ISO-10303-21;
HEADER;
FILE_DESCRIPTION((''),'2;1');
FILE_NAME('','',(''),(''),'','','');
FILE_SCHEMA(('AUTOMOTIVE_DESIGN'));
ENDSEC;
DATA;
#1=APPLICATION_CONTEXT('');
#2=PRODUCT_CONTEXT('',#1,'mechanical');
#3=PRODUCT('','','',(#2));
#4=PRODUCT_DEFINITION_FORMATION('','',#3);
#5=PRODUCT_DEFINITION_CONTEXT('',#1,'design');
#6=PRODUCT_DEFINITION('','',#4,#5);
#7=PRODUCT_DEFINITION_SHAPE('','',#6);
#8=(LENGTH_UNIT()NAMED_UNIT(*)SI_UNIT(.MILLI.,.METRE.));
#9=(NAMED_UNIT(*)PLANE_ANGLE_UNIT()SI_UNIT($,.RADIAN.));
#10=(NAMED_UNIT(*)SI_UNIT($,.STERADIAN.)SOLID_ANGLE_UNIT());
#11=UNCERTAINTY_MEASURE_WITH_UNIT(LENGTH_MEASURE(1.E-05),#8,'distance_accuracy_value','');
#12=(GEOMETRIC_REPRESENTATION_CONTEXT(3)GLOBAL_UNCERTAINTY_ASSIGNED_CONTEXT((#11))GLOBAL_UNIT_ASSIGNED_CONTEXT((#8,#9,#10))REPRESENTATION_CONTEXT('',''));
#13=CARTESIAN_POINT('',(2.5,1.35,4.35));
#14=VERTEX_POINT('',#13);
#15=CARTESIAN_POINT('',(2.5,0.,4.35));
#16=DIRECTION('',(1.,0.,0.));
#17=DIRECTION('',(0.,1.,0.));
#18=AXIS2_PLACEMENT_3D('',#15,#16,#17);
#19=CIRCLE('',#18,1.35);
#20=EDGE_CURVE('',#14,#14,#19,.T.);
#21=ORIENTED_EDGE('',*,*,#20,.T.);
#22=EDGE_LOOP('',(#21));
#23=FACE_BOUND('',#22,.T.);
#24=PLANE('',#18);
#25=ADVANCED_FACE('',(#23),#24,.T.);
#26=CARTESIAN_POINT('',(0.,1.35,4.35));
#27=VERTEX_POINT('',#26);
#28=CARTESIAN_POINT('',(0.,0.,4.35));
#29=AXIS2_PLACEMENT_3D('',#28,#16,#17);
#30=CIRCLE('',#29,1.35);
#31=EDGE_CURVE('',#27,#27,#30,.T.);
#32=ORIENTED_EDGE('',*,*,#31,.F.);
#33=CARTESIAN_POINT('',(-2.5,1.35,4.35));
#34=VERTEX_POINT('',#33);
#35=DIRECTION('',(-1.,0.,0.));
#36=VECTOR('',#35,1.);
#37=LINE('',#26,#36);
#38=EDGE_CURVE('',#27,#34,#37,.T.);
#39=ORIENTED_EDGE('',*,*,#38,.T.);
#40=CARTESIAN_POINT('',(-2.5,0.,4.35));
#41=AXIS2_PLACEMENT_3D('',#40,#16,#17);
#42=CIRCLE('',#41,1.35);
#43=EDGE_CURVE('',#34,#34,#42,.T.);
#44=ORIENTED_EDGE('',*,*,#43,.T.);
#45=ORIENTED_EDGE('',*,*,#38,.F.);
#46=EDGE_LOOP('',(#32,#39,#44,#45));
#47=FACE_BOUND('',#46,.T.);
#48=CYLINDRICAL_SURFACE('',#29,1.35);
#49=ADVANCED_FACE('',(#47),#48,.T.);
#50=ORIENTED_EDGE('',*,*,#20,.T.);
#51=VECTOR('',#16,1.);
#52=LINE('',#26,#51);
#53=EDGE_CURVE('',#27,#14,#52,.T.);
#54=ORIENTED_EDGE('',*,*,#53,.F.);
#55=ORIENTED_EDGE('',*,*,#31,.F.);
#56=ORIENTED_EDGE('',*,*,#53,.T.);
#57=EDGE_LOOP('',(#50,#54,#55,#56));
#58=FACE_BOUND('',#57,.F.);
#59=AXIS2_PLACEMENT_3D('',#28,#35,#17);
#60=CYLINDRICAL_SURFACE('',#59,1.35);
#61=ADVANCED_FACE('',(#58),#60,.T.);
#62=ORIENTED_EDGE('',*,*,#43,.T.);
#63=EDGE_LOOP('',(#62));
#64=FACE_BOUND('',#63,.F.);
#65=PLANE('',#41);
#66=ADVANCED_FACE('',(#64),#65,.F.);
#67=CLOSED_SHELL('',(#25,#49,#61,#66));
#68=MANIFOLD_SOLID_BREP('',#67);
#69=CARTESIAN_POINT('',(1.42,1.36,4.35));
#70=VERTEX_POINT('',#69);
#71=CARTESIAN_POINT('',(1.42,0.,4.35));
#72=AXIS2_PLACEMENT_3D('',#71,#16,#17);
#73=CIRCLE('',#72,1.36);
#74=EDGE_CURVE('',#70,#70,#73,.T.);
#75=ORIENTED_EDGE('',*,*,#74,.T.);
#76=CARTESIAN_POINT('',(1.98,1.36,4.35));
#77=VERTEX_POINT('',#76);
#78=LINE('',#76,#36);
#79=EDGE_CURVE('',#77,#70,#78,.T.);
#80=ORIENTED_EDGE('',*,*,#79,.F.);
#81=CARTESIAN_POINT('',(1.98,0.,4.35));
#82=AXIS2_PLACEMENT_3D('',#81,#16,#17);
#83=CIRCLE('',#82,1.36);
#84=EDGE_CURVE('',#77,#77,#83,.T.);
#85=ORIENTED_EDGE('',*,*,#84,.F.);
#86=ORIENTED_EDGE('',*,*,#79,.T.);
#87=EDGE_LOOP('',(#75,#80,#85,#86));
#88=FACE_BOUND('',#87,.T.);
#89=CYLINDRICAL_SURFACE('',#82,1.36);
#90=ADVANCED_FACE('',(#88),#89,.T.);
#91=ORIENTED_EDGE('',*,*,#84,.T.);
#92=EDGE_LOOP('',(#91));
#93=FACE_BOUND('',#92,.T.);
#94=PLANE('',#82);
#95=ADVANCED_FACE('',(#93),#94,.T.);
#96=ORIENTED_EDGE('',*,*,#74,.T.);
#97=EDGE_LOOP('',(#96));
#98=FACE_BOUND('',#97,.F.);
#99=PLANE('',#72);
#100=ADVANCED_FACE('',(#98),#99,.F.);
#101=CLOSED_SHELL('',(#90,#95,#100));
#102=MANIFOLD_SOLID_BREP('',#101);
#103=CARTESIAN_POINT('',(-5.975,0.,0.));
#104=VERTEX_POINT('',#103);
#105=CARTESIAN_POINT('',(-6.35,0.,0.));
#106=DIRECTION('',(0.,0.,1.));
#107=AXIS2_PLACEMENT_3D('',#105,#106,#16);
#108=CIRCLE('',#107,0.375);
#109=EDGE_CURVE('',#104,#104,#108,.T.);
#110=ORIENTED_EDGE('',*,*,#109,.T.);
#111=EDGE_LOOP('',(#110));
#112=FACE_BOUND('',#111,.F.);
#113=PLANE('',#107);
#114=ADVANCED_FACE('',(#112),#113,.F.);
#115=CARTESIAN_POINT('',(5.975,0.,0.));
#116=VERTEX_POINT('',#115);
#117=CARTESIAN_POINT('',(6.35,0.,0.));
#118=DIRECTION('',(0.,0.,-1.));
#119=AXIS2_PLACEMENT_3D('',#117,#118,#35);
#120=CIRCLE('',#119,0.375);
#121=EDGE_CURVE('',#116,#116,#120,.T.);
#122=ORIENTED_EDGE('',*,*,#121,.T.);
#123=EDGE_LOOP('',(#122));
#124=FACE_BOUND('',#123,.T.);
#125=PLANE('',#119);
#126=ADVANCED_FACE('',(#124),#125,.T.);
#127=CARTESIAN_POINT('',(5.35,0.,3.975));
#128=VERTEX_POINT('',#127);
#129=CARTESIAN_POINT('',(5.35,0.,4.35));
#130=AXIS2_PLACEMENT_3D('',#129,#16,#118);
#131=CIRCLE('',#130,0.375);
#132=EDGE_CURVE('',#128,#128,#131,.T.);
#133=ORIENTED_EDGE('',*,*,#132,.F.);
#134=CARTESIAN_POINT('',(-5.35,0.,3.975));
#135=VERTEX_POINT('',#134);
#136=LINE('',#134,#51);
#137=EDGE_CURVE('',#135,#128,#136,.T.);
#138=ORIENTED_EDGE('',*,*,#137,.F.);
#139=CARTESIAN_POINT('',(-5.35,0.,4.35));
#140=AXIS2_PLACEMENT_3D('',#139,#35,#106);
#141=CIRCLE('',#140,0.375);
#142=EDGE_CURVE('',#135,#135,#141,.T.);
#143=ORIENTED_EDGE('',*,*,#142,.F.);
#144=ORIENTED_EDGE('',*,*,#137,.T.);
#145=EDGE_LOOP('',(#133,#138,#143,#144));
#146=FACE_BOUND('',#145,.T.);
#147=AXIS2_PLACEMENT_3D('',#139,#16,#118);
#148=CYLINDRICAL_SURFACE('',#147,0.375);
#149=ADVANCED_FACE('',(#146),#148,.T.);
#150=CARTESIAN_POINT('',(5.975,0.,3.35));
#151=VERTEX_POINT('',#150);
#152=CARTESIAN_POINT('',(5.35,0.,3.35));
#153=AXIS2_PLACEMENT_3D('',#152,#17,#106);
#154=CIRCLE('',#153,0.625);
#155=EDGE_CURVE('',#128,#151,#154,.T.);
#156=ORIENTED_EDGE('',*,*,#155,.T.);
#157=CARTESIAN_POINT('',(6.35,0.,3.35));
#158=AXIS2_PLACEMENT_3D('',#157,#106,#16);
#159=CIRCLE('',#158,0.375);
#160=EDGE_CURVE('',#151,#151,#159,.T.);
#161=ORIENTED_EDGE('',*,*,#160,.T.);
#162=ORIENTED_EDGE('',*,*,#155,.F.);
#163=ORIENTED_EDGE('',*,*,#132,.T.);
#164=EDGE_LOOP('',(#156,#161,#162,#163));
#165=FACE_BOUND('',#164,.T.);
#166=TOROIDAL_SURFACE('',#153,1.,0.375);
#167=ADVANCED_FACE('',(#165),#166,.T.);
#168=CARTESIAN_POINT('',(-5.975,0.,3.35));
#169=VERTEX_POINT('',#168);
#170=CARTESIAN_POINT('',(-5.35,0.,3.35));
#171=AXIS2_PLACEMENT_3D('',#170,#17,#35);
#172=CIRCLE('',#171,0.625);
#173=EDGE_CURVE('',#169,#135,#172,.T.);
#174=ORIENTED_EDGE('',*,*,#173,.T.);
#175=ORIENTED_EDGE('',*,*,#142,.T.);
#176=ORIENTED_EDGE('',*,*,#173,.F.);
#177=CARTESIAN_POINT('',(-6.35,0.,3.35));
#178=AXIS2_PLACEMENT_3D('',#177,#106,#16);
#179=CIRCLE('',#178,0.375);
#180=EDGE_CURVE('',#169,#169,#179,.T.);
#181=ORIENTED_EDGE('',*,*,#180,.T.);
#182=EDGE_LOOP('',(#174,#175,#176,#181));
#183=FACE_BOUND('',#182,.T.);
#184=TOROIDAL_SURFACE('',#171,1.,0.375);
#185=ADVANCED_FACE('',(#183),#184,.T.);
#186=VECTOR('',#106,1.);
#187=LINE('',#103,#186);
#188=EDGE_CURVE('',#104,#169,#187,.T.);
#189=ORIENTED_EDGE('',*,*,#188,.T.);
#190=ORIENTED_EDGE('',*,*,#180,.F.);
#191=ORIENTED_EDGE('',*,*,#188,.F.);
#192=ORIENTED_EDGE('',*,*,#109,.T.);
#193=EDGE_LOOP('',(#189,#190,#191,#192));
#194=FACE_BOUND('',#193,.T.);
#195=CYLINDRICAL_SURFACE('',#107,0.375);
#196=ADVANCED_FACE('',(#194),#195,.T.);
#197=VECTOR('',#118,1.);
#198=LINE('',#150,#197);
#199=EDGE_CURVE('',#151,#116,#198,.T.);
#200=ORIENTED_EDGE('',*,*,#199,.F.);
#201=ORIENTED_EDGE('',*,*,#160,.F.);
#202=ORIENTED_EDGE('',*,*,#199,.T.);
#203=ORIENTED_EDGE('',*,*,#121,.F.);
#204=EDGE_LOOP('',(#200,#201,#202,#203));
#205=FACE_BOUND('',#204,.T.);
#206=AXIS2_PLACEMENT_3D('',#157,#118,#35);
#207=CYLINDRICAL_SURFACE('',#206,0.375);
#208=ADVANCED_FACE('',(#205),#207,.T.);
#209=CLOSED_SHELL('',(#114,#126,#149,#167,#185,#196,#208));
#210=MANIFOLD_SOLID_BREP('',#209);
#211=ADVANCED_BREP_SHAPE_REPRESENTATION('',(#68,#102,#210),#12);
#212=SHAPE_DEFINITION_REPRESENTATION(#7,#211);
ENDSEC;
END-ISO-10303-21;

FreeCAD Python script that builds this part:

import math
import FreeCAD as App
import Part
import Sketcher

V = App.Vector
Q = App.Units.Quantity

doc = App.newDocument("Part")
body = doc.addObject("PartDesign::Body", "Body")

sketch1 = body.newObject("Sketcher::SketchObject", "Sketch")
sketch1.AttachmentSupport = (doc.getObject("XY_Plane"), [""])
sketch1.MapMode = "FlatFace"
sketch1.addGeometry(Part.Circle(V(-6.35, 0, 0), V(0, 0, 1), 0.38), False)
sketch1.addConstraint(Sketcher.Constraint("PointOnObject", 0, 3, -1))
sketch1.addConstraint(Sketcher.Constraint("Diameter", 0, Q("0.75 mm")))
sketch1.addConstraint(Sketcher.Constraint("DistanceX", 0, 3, -1, 1, Q("6.35 mm")))

sketch2 = body.newObject("Sketcher::SketchObject", "Sketch001")
sketch2.AttachmentSupport = (doc.getObject("XZ_Plane"), [""])
sketch2.MapMode = "FlatFace"
sketch2.addGeometry(Part.LineSegment(V(-6.3, 0, 0), V(-6.3, 3.4, 0)), False)
sketch2.addGeometry(Part.ArcOfCircle(Part.Circle(V(-5.3, 3.4, 0), V(0, 0, 1), 1), math.radians(90), math.radians(180)), False)
sketch2.addGeometry(Part.LineSegment(V(-5.3, 4.3, 0), V(5.3, 4.3, 0)), False)
sketch2.addGeometry(Part.ArcOfCircle(Part.Circle(V(5.3, 3.4, 0), V(0, 0, 1), 1), math.radians(0), math.radians(90)), False)
sketch2.addGeometry(Part.LineSegment(V(6.3, 3.4, 0), V(6.3, 0, 0)), False)
sketch2.addConstraint(Sketcher.Constraint("Tangent", 0, 2, 1, 2))
sketch2.addConstraint(Sketcher.Constraint("Tangent", 1, 1, 2, 1))
sketch2.addConstraint(Sketcher.Constraint("Tangent", 2, 2, 3, 2))
sketch2.addConstraint(Sketcher.Constraint("Tangent", 3, 1, 4, 1))
sketch2.addConstraint(Sketcher.Constraint("Vertical", 0))
sketch2.addConstraint(Sketcher.Constraint("Horizontal", 2))
sketch2.addConstraint(Sketcher.Constraint("Vertical", 4))
sketch2.addConstraint(Sketcher.Constraint("Equal", 1, 3))
sketch2.addConstraint(Sketcher.Constraint("Symmetric", 0, 1, 4, 2, -1, 1))
sketch2.addConstraint(Sketcher.Constraint("PointOnObject", 0, 1, -1))
sketch2.addConstraint(Sketcher.Constraint("Radius", 1, Q("1 mm")))
sketch2.addConstraint(Sketcher.Constraint("DistanceX", 2, 1, 2, 2, Q("10.7 mm")))
sketch2.addConstraint(Sketcher.Constraint("DistanceY", 0, 1, 0, 2, Q("3.35 mm")))
doc.recompute()

additivepipe = body.newObject("PartDesign::AdditivePipe", "AdditivePipe")
additivepipe.Profile = sketch1
additivepipe.Spine = (sketch2, ["Edge1", "Edge2", "Edge3", "Edge4", "Edge5"])
body2 = doc.addObject("PartDesign::Body", "Body001")

sketch3 = body2.newObject("Sketcher::SketchObject", "Sketch002")
sketch3.AttachmentSupport = (doc.getObject("YZ_Plane001"), [""])
sketch3.MapMode = "FlatFace"
sketch3.addGeometry(Part.Circle(V(0, 4.3, 0), V(0, 0, 1), 1.4), False)
sketch3.addConstraint(Sketcher.Constraint("PointOnObject", 0, 3, -2))
sketch3.addConstraint(Sketcher.Constraint("Diameter", 0, Q("2.7 mm")))
sketch3.addConstraint(Sketcher.Constraint("DistanceY", -1, 1, 0, 3, Q("4.35 mm")))
pad1 = body2.newObject("PartDesign::Pad", "Pad")
pad1.Profile = sketch3
pad1.Type = "TwoLengths"
pad1.Length = 2.5
pad1.Length2 = 2.5
pad1.Reversed = True
body3 = doc.addObject("PartDesign::Body", "Body002")

sketch4 = body3.newObject("Sketcher::SketchObject", "Sketch003")
sketch4.AttachmentSupport = (doc.getObject("YZ_Plane002"), [""])
sketch4.MapMode = "FlatFace"
sketch4.AttachmentOffset = App.Placement(V(0, 0, 1.98), App.Rotation())
sketch4.addGeometry(Part.Circle(V(0, 4.3, 0), V(0, 0, 1), 1.4), False)
sketch4.addConstraint(Sketcher.Constraint("PointOnObject", 0, 3, -2))
sketch4.addConstraint(Sketcher.Constraint("Diameter", 0, Q("2.72 mm")))
sketch4.addConstraint(Sketcher.Constraint("DistanceY", -1, 1, 0, 3, Q("4.35 mm")))
pad2 = body3.newObject("PartDesign::Pad", "Pad001")
pad2.Profile = sketch4
pad2.Length = 0.56
pad2.Reversed = True

doc.recompute()
